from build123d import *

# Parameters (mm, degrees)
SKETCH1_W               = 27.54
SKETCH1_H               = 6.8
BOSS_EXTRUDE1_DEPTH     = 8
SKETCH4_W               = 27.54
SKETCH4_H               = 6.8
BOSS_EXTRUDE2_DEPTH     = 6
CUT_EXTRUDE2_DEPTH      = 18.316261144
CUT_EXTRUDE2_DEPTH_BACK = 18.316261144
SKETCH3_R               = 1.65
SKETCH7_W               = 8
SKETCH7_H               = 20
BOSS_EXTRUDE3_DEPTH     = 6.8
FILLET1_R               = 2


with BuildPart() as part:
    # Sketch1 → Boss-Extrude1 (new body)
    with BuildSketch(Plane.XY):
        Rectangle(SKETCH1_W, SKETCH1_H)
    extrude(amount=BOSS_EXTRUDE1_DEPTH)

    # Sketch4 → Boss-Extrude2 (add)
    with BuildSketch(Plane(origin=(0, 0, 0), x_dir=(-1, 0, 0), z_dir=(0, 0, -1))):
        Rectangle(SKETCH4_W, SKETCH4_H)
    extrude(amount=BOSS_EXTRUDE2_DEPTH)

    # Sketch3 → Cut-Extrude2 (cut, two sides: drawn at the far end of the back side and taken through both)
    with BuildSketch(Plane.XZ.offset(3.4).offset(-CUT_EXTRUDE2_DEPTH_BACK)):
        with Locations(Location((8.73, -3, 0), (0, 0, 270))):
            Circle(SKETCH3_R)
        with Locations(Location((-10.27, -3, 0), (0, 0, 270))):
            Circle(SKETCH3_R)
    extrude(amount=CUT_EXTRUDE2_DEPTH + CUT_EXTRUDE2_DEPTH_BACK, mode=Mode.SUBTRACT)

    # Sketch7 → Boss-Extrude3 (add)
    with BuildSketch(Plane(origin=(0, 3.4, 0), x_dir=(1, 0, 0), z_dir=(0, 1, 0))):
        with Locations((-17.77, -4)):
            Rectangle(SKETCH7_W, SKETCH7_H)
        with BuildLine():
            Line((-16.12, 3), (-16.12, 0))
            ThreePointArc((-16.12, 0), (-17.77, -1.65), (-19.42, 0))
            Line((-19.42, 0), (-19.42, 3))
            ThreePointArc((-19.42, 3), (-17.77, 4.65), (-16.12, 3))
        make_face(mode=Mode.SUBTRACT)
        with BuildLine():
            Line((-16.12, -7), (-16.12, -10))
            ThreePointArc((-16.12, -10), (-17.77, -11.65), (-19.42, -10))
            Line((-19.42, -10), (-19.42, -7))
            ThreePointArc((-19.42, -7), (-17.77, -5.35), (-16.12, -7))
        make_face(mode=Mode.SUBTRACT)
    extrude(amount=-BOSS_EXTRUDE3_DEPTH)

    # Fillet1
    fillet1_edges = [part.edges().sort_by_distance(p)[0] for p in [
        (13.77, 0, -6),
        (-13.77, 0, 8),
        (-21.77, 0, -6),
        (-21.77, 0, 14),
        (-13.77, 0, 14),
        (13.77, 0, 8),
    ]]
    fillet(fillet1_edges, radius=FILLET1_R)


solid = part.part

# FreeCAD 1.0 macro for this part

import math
import FreeCAD as App
import Part
import Sketcher


def edges_at(feature, points):
    """Names of the edges that pass closest to the given points."""
    edges = feature.Shape.Edges
    near = lambda p: min(range(len(edges)), key=lambda i: edges[i].distToShape(Part.Vertex(*p))[0])
    return sorted({f"Edge{near(p) + 1}" for p in points})


def add_polygon(sketch, points):
    """Adds a closed chain of lines whose ends are joined by coincident constraints."""
    first, n = sketch.GeometryCount, len(points)
    for a, b in zip(points, points[1:] + points[:1]):
        sketch.addGeometry(Part.LineSegment(App.Vector(*a, 0), App.Vector(*b, 0)), False)
    for i in range(n):
        sketch.addConstraint(Sketcher.Constraint("Coincident", first + i, 2, first + (i + 1) % n, 1))

doc = App.newDocument("Part")
body = doc.addObject("PartDesign::Body", "Body")

sketch1 = doc.addObject("Sketcher::SketchObject", "Sketch")
body.addObject(sketch1)
sketch1.AttachmentSupport = (doc.XY_Plane, [""])
sketch1.MapMode = "FlatFace"
add_polygon(sketch1, [(-14, 3), (-14, -3), (14, -3), (14, 3)])
sketch1.addConstraint([
    Sketcher.Constraint("Vertical", 0),
    Sketcher.Constraint("Horizontal", 1),
    Sketcher.Constraint("Vertical", 2),
    Sketcher.Constraint("Horizontal", 3),
    Sketcher.Constraint("Symmetric", 0, 2, 2, 2, -1, 1),
    Sketcher.Constraint("DistanceY", 0, 2, 0, 1, 6.8),
    Sketcher.Constraint("DistanceX", 1, 1, 1, 2, 27.54),
])
pad1 = doc.addObject("PartDesign::Pad", "Pad")
body.addObject(pad1)
pad1.Profile = sketch1
pad1.Length = 8

sketch2 = doc.addObject("Sketcher::SketchObject", "Sketch001")
body.addObject(sketch2)
sketch2.AttachmentSupport = (doc.XY_Plane, [""])
sketch2.MapMode = "FlatFace"
add_polygon(sketch2, [(14, 3), (14, -3), (-14, -3), (-14, 3)])
sketch2.addConstraint([
    Sketcher.Constraint("Vertical", 0),
    Sketcher.Constraint("Horizontal", 1),
    Sketcher.Constraint("Vertical", 2),
    Sketcher.Constraint("Horizontal", 3),
    Sketcher.Constraint("Symmetric", 0, 2, 2, 2, -1, 1),
    Sketcher.Constraint("DistanceY", 0, 2, 0, 1, 6.8),
    Sketcher.Constraint("DistanceX", 1, 2, 1, 1, 27.54),
])
pad2 = doc.addObject("PartDesign::Pad", "Pad001")
body.addObject(pad2)
pad2.Profile = sketch2
pad2.Length = 6
pad2.Reversed = True

sketch3 = doc.addObject("Sketcher::SketchObject", "Sketch002")
body.addObject(sketch3)
sketch3.AttachmentSupport = (doc.XZ_Plane, [""])
sketch3.MapMode = "FlatFace"
sketch3.AttachmentOffset = App.Placement(App.Vector(0, 0, 3.4), App.Rotation())
sketch3.addGeometry([
    Part.Circle(App.Vector(8.7, -3, 0), App.Vector(0, 0, 1), 1.6),
    Part.Circle(App.Vector(-10.3, -3, 0), App.Vector(0, 0, 1), 1.6),
], False)
sketch3.addConstraint([
    Sketcher.Constraint("Equal", 0, 1),
    Sketcher.Constraint("Horizontal", 0, 3, 1, 3),
    Sketcher.Constraint("Diameter", 0, 3.3),
    Sketcher.Constraint("DistanceY", 0, 3, -1, 1, 3.0),
    Sketcher.Constraint("DistanceX", 1, 3, 0, 3, 19.0),
    Sketcher.Constraint("DistanceX", -1, 1, 0, 3, 8.73),
])
pocket1 = doc.addObject("PartDesign::Pocket", "Pocket")
body.addObject(pocket1)
pocket1.Profile = sketch3
pocket1.Type = "ThroughAll"
pocket1.Midplane = True

sketch4 = doc.addObject("Sketcher::SketchObject", "Sketch003")
body.addObject(sketch4)
sketch4.AttachmentSupport = (doc.XZ_Plane, [""])
sketch4.MapMode = "FlatFace"
sketch4.AttachmentOffset = App.Placement(App.Vector(0, 0, -3.4), App.Rotation())
add_polygon(sketch4, [(-21.8, -6), (-21.8, 14), (-13.8, 14), (-13.8, -6)])
sketch4.addGeometry(Part.ArcOfCircle(Part.Circle(App.Vector(-17.8, 7, 0), App.Vector(0, 0, 1), 1.6), math.radians(180), math.radians(360)), False)
sketch4.addGeometry(Part.LineSegment(App.Vector(-16.1, 7, 0), App.Vector(-16.1, 10, 0)), False)
sketch4.addGeometry(Part.ArcOfCircle(Part.Circle(App.Vector(-17.8, 10, 0), App.Vector(0, 0, 1), 1.6), math.radians(0), math.radians(180)), False)
sketch4.addGeometry(Part.LineSegment(App.Vector(-19.4, 10, 0), App.Vector(-19.4, 7, 0)), False)
sketch4.addGeometry(Part.ArcOfCircle(Part.Circle(App.Vector(-17.8, -3, 0), App.Vector(0, 0, 1), 1.6), math.radians(180), math.radians(360)), False)
sketch4.addGeometry(Part.LineSegment(App.Vector(-16.1, -3, 0), App.Vector(-16.1, 0, 0)), False)
sketch4.addGeometry(Part.ArcOfCircle(Part.Circle(App.Vector(-17.8, 0, 0), App.Vector(0, 0, 1), 1.6), math.radians(0), math.radians(180)), False)
sketch4.addGeometry(Part.LineSegment(App.Vector(-19.4, 0, 0), App.Vector(-19.4, -3, 0)), False)
sketch4.addConstraint([
    Sketcher.Constraint("Tangent", 4, 2, 5, 1),
    Sketcher.Constraint("Tangent", 5, 2, 6, 1),
    Sketcher.Constraint("Tangent", 6, 2, 7, 1),
    Sketcher.Constraint("Tangent", 7, 2, 4, 1),
    Sketcher.Constraint("Tangent", 8, 2, 9, 1),
    Sketcher.Constraint("Tangent", 9, 2, 10, 1),
    Sketcher.Constraint("Tangent", 10, 2, 11, 1),
    Sketcher.Constraint("Tangent", 11, 2, 8, 1),
    Sketcher.Constraint("Vertical", 0),
    Sketcher.Constraint("Horizontal", 1),
    Sketcher.Constraint("Vertical", 2),
    Sketcher.Constraint("Horizontal", 3),
    Sketcher.Constraint("Vertical", 5),
    Sketcher.Constraint("Vertical", 7),
    Sketcher.Constraint("Vertical", 9),
    Sketcher.Constraint("Vertical", 11),
    Sketcher.Constraint("Equal", 6, 8),
    Sketcher.Constraint("PointOnObject", 10, 3, -1),
    Sketcher.Constraint("Vertical", 6, 3, 8, 3),
    Sketcher.Constraint("Equal", 7, 9),
    Sketcher.Constraint("DistanceX", 1, 1, 1, 2, 8.0),
    Sketcher.Constraint("DistanceY", 0, 1, 0, 2, 20.0),
    Sketcher.Constraint("DistanceY", 5, 1, 5, 2, 3.0),
    Sketcher.Constraint("Radius", 4, 1.65),
    Sketcher.Constraint("DistanceY", -1, 1, 4, 3, 7.0),
    Sketcher.Constraint("DistanceY", -1, 1, 0, 2, 14.0),
    Sketcher.Constraint("DistanceX", 0, 2, 6, 3, 4.0),
    Sketcher.Constraint("DistanceX", 4, 3, -1, 1, 17.77),
])
pad3 = doc.addObject("PartDesign::Pad", "Pad002")
body.addObject(pad3)
pad3.Profile = sketch4
pad3.Length = 6.8
doc.recompute()

fillet = doc.addObject("PartDesign::Fillet", "Fillet")
body.addObject(fillet)
fillet.Base = (pad3, edges_at(pad3, [
    (13.77, 0, -6),
    (-13.77, 0, 8),
    (-21.77, 0, -6),
    (-21.77, 0, 14),
    (-13.77, 0, 14),
    (13.77, 0, 8),
]))
fillet.Radius = 2

doc.recompute()
